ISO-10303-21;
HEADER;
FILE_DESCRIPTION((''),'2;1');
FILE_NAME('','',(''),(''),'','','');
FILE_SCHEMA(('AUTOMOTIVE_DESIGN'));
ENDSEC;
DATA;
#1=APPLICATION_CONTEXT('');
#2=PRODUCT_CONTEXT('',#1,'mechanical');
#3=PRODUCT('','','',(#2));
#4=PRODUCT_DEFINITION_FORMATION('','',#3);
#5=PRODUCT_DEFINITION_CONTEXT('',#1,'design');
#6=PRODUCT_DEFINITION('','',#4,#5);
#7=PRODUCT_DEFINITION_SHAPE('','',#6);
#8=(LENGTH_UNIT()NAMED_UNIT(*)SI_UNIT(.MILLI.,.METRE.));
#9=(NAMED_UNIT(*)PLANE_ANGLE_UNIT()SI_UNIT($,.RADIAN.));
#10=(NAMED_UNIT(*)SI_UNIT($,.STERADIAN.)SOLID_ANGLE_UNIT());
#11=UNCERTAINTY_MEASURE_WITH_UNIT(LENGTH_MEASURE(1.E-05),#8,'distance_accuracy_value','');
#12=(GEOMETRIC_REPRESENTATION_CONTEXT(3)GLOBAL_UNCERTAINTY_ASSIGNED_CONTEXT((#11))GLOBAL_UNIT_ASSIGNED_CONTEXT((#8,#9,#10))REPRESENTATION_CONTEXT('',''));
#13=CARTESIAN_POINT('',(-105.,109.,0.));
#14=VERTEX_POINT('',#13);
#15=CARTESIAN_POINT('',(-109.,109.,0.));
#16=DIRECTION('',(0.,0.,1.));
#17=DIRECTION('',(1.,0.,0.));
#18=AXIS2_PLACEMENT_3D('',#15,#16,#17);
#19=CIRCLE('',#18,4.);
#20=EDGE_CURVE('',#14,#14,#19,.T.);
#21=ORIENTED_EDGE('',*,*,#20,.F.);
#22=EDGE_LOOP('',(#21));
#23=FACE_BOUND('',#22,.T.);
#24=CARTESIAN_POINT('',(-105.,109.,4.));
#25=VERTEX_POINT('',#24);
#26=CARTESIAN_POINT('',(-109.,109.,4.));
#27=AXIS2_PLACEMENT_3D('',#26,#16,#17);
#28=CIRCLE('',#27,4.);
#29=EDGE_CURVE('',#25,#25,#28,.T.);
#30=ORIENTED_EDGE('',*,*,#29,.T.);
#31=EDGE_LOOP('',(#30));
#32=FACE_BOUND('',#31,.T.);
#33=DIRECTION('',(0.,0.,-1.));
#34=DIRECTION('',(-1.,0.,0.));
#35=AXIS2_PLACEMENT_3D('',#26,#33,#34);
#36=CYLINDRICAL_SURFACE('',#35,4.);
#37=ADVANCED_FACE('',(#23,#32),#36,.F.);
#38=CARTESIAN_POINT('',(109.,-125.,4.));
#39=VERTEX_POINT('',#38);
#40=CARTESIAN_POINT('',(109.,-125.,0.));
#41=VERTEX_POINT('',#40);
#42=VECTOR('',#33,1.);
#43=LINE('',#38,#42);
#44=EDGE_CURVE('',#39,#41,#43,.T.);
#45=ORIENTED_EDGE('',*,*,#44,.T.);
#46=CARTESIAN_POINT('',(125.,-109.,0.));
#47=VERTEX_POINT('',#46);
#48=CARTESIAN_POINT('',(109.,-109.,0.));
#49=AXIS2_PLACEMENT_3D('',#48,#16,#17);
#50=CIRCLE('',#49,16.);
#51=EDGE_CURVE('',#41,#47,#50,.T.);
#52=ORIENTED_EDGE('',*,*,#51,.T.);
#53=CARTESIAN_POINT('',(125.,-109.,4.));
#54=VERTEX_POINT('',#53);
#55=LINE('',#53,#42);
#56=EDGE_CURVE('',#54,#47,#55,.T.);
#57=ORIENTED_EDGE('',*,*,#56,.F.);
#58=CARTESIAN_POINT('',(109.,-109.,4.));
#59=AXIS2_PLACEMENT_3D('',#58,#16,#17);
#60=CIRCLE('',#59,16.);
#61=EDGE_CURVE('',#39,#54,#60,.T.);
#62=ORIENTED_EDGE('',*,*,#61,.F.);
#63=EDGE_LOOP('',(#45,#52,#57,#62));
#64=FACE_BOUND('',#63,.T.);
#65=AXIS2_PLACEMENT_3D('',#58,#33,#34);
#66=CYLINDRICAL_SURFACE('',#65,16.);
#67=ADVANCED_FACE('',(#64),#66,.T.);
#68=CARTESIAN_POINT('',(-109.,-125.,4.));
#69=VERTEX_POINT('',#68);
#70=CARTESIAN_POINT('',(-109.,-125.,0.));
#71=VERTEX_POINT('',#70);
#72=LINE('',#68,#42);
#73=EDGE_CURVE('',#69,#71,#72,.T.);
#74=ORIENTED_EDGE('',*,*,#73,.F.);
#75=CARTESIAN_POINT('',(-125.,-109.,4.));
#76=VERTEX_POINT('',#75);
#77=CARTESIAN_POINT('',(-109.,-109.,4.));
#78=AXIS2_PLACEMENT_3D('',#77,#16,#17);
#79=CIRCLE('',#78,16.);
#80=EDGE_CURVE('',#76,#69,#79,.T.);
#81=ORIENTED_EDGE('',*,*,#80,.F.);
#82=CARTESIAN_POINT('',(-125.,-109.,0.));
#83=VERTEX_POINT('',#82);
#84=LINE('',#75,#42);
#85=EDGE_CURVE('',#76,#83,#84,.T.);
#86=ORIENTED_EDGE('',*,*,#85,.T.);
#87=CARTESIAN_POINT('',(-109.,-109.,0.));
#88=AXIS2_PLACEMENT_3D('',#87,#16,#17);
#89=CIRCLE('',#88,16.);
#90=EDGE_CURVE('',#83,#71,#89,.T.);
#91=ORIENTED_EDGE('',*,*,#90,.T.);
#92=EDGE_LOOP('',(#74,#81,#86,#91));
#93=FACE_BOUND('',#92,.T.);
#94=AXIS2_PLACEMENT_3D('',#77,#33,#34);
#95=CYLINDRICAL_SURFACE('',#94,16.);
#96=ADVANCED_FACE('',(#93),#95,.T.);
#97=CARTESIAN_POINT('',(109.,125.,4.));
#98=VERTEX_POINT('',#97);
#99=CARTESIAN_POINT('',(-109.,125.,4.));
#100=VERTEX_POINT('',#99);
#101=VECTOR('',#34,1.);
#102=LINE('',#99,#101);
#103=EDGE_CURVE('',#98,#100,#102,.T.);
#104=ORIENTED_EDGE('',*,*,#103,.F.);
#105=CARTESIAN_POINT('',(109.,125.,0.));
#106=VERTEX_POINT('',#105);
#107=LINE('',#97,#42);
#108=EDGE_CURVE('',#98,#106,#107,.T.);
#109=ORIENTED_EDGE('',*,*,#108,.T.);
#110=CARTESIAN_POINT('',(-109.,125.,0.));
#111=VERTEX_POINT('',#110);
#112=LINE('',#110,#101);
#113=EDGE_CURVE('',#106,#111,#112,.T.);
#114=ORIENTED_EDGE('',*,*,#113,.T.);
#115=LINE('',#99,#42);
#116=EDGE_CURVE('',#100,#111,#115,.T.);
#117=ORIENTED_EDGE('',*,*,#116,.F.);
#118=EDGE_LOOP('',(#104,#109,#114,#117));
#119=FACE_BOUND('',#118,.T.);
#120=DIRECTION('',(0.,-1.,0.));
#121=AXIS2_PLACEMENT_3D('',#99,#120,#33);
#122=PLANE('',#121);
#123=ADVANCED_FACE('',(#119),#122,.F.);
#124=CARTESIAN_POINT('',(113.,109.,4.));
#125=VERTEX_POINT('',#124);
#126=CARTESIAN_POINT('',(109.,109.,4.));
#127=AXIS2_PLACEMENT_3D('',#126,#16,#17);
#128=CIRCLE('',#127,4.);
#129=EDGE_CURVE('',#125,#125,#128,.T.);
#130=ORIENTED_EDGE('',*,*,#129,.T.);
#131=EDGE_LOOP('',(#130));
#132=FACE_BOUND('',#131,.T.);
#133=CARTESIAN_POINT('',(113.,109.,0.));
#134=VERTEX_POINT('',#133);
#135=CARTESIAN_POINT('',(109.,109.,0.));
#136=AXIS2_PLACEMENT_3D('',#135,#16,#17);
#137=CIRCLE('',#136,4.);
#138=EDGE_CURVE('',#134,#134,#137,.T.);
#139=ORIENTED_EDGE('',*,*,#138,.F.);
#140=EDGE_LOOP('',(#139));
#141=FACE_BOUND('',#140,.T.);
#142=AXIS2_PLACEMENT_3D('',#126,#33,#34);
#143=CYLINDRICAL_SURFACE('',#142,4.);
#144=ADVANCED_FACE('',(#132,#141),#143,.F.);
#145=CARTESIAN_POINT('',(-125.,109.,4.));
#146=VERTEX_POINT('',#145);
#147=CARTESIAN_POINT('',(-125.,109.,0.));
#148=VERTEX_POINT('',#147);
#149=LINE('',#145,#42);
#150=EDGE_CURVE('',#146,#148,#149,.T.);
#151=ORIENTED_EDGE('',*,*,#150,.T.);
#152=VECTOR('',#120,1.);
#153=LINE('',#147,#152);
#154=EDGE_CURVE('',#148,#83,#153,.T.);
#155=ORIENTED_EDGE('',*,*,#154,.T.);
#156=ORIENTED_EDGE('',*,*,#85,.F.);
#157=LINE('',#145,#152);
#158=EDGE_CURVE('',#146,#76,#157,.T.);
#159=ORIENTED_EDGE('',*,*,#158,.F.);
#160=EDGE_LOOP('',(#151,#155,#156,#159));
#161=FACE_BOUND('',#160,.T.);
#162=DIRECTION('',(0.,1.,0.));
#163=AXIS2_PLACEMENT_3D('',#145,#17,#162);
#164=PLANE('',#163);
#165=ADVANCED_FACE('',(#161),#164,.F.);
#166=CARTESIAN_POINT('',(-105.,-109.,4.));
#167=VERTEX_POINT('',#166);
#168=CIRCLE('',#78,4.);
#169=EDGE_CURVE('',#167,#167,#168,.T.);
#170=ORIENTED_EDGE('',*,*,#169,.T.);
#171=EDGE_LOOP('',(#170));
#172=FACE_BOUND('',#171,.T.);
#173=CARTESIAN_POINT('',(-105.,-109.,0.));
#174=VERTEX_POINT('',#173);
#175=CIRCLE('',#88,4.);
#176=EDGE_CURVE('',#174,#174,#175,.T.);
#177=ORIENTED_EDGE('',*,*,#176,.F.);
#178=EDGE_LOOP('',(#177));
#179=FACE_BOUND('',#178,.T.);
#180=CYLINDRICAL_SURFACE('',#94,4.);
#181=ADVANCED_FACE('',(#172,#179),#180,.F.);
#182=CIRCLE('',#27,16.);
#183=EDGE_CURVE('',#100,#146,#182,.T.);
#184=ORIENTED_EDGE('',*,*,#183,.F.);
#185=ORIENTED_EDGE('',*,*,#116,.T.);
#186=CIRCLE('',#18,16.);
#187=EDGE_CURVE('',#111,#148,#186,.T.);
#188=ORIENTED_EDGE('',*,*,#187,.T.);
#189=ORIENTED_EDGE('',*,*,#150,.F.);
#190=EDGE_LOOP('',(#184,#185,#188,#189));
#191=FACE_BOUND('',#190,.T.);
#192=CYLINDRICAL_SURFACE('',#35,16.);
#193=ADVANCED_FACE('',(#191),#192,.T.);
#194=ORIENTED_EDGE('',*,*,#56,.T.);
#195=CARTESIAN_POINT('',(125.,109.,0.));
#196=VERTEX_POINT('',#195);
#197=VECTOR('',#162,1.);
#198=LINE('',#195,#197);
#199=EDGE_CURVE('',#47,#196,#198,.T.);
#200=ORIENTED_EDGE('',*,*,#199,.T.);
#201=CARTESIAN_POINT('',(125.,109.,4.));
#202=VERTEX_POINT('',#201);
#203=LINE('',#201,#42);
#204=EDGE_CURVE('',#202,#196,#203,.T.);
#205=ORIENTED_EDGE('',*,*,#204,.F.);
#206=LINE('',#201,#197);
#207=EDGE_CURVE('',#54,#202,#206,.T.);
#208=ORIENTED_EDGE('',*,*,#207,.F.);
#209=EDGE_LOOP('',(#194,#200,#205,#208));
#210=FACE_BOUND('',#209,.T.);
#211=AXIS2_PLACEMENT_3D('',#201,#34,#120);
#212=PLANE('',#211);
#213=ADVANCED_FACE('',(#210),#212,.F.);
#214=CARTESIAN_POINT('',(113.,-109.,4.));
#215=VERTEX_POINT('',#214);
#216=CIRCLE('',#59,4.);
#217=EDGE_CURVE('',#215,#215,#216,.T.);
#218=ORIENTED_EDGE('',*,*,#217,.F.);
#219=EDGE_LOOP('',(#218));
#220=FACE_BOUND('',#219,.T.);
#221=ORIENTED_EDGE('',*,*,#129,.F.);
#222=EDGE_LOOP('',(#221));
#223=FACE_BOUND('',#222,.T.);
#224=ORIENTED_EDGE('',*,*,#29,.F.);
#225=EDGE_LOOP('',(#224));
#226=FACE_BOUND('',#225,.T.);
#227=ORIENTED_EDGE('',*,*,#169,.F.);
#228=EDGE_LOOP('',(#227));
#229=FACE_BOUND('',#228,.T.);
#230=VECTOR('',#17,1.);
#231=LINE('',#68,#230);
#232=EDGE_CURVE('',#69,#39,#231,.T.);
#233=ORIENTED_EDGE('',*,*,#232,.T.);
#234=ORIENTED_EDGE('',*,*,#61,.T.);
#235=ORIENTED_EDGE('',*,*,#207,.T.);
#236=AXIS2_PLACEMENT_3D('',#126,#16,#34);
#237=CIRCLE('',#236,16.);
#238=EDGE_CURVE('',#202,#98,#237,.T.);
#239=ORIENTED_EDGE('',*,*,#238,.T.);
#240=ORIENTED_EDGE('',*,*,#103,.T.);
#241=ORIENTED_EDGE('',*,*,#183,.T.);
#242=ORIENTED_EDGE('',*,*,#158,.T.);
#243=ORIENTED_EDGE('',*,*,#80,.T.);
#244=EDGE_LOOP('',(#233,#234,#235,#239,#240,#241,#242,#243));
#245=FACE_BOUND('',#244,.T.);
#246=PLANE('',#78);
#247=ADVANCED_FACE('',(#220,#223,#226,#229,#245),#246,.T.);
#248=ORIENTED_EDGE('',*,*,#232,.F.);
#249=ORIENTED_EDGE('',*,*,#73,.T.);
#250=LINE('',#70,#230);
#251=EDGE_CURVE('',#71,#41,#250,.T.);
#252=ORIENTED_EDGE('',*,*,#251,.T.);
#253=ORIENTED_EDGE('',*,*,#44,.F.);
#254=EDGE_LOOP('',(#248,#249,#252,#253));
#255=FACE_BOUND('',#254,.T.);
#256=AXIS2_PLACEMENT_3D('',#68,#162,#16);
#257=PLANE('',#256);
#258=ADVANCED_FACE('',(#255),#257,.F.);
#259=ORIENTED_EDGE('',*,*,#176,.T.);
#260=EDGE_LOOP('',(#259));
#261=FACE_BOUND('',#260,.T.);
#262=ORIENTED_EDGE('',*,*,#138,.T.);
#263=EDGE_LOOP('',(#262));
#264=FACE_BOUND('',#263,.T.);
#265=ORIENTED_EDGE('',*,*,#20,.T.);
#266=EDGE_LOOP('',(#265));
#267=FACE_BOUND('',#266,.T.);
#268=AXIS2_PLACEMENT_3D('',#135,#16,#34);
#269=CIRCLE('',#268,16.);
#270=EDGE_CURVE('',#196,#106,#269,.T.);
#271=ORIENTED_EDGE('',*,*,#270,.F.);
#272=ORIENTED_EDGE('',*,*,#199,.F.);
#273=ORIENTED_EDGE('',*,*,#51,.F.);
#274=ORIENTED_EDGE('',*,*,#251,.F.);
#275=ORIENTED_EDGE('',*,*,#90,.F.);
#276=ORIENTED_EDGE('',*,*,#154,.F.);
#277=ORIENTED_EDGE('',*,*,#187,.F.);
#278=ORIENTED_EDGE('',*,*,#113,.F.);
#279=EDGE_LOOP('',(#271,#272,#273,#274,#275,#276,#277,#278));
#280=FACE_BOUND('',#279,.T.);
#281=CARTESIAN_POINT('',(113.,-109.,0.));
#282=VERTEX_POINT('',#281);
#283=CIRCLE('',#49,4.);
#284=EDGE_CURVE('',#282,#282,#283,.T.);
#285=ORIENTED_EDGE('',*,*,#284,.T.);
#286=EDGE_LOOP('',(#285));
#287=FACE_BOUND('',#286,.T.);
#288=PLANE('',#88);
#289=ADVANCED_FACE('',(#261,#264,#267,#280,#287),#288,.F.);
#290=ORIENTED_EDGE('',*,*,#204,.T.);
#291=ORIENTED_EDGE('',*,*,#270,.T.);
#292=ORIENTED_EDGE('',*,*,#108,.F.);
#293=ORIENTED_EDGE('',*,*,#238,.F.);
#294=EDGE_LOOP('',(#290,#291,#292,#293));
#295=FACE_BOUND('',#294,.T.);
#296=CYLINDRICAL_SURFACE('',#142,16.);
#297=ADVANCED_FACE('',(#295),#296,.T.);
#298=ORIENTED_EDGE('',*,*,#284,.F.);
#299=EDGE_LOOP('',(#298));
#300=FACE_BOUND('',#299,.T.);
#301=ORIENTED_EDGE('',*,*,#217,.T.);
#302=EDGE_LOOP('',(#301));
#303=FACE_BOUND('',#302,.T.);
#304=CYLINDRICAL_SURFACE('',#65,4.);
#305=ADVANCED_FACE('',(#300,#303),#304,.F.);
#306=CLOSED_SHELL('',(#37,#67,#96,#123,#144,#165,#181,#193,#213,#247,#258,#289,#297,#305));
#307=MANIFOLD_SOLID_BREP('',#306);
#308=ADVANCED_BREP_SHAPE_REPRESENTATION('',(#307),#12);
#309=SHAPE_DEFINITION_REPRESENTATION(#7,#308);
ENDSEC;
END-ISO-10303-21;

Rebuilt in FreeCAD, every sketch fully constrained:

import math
import FreeCAD as App
import Part
import Sketcher

V = App.Vector

doc = App.newDocument("Part")
body = doc.addObject("PartDesign::Body", "Body")

sketch1 = body.newObject("Sketcher::SketchObject", "Sketch")
sketch1.AttachmentSupport = (doc.getObject("XY_Plane"), [""])
sketch1.MapMode = "FlatFace"
sketch1.addGeometry([
    Part.LineSegment(V(109, 125, 0), V(-109, 125, 0)),
    Part.ArcOfCircle(Part.Circle(V(-109, 109, 0), V(0, 0, 1), 16), math.radians(90), math.radians(180)),
    Part.LineSegment(V(-125, 109, 0), V(-125, -109, 0)),
    Part.ArcOfCircle(Part.Circle(V(-109, -109, 0), V(0, 0, 1), 16), math.radians(180), math.radians(270)),
    Part.LineSegment(V(-109, -125, 0), V(109, -125, 0)),
    Part.ArcOfCircle(Part.Circle(V(109, -109, 0), V(0, 0, 1), 16), math.radians(-90), math.radians(0)),
    Part.LineSegment(V(125, -109, 0), V(125, 109, 0)),
    Part.ArcOfCircle(Part.Circle(V(109, 109, 0), V(0, 0, 1), 16), math.radians(0), math.radians(90)),
    Part.Circle(V(109, -109, 0), V(0, 0, 1), 4),
    Part.Circle(V(-109, -109, 0), V(0, 0, 1), 4),
    Part.Circle(V(109, 109, 0), V(0, 0, 1), 4),
    Part.Circle(V(-109, 109, 0), V(0, 0, 1), 4),
], False)
sketch1.addConstraint([
    Sketcher.Constraint("Tangent", 0, 2, 1, 1),
    Sketcher.Constraint("Tangent", 1, 2, 2, 1),
    Sketcher.Constraint("Tangent", 2, 2, 3, 1),
    Sketcher.Constraint("Tangent", 3, 2, 4, 1),
    Sketcher.Constraint("Tangent", 4, 2, 5, 1),
    Sketcher.Constraint("Tangent", 5, 2, 6, 1),
    Sketcher.Constraint("Tangent", 6, 2, 7, 1),
    Sketcher.Constraint("Tangent", 7, 2, 0, 1),
    Sketcher.Constraint("Horizontal", 0),
    Sketcher.Constraint("Vertical", 2),
    Sketcher.Constraint("Horizontal", 4),
    Sketcher.Constraint("Vertical", 6),
    Sketcher.Constraint("Coincident", 8, 3, 5, 3),
    Sketcher.Constraint("Coincident", 9, 3, 3, 3),
    Sketcher.Constraint("Coincident", 10, 3, 7, 3),
    Sketcher.Constraint("Coincident", 11, 3, 1, 3),
    Sketcher.Constraint("Equal", 1, 3),
    Sketcher.Constraint("Equal", 3, 5),
    Sketcher.Constraint("Equal", 5, 7),
    Sketcher.Constraint("Equal", 8, 9),
    Sketcher.Constraint("Equal", 9, 10),
    Sketcher.Constraint("Equal", 10, 11),
    Sketcher.Constraint("Symmetric", 1, 3, 5, 3, -1, 1),
    Sketcher.Constraint("Equal", 4, 2),
    Sketcher.Constraint("Diameter", 8, 8.0),
    Sketcher.Constraint("Radius", 1, 16.0),
    Sketcher.Constraint("DistanceX", 0, 2, 0, 1, 218.0),
])
pad1 = body.newObject("PartDesign::Pad", "Pad")
pad1.Profile = sketch1
pad1.Length = 4

doc.recompute()
